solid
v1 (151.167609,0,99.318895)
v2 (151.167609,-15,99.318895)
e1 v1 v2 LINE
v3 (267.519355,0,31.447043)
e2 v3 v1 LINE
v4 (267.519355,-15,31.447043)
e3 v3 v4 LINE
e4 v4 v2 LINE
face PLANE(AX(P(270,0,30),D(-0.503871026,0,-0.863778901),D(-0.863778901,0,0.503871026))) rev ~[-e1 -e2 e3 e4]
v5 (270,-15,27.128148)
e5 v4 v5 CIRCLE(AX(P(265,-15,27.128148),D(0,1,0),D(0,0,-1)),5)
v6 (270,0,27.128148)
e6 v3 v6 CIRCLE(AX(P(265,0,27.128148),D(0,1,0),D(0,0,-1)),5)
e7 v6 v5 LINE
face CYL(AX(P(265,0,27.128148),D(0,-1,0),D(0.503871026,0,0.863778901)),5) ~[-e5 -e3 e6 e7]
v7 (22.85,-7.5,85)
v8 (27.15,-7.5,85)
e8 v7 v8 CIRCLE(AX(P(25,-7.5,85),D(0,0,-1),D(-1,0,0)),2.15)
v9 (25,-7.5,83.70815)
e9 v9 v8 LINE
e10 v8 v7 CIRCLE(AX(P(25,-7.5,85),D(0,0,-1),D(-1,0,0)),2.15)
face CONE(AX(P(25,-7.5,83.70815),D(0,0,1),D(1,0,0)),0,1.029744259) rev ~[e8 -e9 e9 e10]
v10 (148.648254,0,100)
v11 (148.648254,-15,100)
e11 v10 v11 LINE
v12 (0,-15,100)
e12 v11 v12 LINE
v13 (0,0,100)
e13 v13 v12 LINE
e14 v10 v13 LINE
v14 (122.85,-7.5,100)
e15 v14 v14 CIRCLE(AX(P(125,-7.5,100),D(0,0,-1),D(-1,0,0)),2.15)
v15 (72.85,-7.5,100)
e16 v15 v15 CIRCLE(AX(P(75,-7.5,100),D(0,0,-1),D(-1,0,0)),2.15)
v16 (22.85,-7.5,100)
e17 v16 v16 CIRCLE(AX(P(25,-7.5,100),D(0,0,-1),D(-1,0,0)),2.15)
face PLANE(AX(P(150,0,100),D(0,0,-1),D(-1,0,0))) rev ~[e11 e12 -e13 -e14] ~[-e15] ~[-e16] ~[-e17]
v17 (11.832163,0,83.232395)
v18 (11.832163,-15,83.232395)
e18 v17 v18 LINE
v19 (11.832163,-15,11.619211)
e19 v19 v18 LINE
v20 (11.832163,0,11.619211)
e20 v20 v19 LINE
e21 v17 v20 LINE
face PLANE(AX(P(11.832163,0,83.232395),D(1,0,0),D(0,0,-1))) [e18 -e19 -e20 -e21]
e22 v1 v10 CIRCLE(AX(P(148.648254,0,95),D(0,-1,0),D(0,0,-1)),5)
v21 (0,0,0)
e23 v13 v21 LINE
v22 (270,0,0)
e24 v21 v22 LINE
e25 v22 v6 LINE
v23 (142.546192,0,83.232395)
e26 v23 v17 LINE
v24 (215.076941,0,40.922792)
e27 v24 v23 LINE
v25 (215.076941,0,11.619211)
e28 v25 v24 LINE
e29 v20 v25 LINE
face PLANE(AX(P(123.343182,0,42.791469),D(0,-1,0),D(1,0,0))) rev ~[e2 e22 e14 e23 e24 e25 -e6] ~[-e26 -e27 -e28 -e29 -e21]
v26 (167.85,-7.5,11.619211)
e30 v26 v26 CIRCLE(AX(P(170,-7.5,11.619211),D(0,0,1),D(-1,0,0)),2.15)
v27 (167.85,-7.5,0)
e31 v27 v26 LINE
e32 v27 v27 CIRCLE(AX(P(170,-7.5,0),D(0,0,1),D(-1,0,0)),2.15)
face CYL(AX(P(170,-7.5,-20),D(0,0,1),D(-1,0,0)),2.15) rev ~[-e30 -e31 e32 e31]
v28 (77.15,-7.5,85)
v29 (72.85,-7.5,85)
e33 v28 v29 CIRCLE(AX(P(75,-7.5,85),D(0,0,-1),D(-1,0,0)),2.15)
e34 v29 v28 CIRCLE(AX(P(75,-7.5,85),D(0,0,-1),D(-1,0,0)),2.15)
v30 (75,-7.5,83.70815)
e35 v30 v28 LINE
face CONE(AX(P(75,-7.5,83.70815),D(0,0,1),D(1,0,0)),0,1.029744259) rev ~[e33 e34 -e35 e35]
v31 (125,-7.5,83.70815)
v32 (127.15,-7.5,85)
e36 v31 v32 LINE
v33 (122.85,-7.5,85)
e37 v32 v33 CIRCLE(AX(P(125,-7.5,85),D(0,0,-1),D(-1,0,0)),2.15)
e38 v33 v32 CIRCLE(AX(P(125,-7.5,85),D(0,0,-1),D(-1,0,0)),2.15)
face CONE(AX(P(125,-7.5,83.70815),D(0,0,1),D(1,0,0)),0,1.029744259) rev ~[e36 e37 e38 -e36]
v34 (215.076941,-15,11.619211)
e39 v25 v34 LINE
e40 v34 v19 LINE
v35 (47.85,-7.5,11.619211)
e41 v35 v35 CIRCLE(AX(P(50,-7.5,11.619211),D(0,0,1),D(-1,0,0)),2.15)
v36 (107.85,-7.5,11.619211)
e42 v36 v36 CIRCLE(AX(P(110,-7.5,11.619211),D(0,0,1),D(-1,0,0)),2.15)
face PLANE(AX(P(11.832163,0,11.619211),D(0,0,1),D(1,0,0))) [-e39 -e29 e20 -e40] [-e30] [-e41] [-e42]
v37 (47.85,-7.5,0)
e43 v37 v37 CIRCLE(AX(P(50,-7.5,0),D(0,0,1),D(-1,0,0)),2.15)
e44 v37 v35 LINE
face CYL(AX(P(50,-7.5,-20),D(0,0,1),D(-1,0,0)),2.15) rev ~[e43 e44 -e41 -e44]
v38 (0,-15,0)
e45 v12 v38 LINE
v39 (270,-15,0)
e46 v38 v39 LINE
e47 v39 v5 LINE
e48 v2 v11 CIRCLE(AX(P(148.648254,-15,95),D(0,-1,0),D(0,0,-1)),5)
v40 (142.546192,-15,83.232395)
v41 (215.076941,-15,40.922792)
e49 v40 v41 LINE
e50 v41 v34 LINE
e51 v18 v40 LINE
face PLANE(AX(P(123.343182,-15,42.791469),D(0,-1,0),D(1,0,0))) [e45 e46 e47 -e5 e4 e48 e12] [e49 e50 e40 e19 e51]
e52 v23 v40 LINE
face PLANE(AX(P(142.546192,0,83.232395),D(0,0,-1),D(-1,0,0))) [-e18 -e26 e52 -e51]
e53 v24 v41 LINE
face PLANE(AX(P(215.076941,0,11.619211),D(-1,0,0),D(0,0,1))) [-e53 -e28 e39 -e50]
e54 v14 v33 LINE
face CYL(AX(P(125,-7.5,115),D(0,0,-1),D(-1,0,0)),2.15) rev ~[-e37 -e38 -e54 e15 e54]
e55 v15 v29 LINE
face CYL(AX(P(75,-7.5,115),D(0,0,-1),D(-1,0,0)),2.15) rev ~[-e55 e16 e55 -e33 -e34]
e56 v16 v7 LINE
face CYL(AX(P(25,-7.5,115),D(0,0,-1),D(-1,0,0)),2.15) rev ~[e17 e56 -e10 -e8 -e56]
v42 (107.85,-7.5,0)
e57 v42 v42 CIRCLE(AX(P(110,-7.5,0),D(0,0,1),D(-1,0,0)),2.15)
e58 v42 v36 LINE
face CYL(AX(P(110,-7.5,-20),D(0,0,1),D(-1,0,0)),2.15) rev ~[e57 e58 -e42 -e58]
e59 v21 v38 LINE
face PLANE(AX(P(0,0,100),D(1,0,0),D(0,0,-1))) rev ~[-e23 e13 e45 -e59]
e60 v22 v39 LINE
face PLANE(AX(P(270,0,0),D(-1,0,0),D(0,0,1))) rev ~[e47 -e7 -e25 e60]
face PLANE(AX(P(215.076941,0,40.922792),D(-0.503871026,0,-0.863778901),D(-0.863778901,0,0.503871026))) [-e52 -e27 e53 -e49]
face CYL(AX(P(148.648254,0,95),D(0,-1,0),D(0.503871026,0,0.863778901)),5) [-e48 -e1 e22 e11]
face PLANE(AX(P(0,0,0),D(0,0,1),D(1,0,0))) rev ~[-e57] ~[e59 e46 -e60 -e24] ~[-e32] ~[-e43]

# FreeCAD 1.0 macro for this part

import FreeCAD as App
import Part
import Sketcher
Q = App.Units.Quantity


def edges_at(feature, points):
    """Names of the edges that pass closest to the given points."""
    edges = feature.Shape.Edges
    near = lambda p: min(range(len(edges)), key=lambda i: edges[i].distToShape(Part.Vertex(*p))[0])
    return sorted({f"Edge{near(p) + 1}" for p in points})


def add_polygon(sketch, points):
    """Adds a closed chain of lines whose ends are joined by coincident constraints."""
    first, n = sketch.GeometryCount, len(points)
    for a, b in zip(points, points[1:] + points[:1]):
        sketch.addGeometry(Part.LineSegment(App.Vector(*a, 0), App.Vector(*b, 0)), False)
    for i in range(n):
        sketch.addConstraint(Sketcher.Constraint("Coincident", first + i, 2, first + (i + 1) % n, 1))

doc = App.newDocument("Part")
body = doc.addObject("PartDesign::Body", "Body")

sketch1 = body.newObject("Sketcher::SketchObject", "Sketch")
sketch1.AttachmentSupport = (doc.getObject("XZ_Plane"), [""])
sketch1.MapMode = "FlatFace"
add_polygon(sketch1, [(0, 100), (0, 0), (270, 0), (270, 30), (150, 100)])
sketch1.addConstraint(Sketcher.Constraint("Vertical", 0))
sketch1.addConstraint(Sketcher.Constraint("Horizontal", 1))
sketch1.addConstraint(Sketcher.Constraint("Vertical", 2))
sketch1.addConstraint(Sketcher.Constraint("Horizontal", 4))
sketch1.addConstraint(Sketcher.Constraint("Coincident", 0, 2, -1, 1))
sketch1.addConstraint(Sketcher.Constraint("DistanceX", 1, 1, 1, 2, Q("270 mm")))
sketch1.addConstraint(Sketcher.Constraint("DistanceX", 4, 2, 4, 1, Q("150 mm")))
sketch1.addConstraint(Sketcher.Constraint("DistanceY", 0, 2, 0, 1, Q("100 mm")))
sketch1.addConstraint(Sketcher.Constraint("DistanceY", 2, 1, 2, 2, Q("30 mm")))
pad1 = body.newObject("PartDesign::Pad", "Pad")
pad1.Profile = sketch1
pad1.Length = 15

sketch2 = body.newObject("Sketcher::SketchObject", "Sketch001")
sketch2.AttachmentSupport = (doc.getObject("XY_Plane"), [""])
sketch2.MapMode = "FlatFace"
sketch2.AttachmentOffset = App.Placement(App.Vector(0, 0, 100), App.Rotation())
sketch2.addGeometry(Part.Circle(App.Vector(125, -7.5, 0), App.Vector(0, 0, 1), 2.15), False)
sketch2.addGeometry(Part.Circle(App.Vector(75, -7.5, 0), App.Vector(0, 0, 1), 2.15), False)
sketch2.addGeometry(Part.Circle(App.Vector(25, -7.5, 0), App.Vector(0, 0, 1), 2.15), False)
sketch2.addConstraint(Sketcher.Constraint("Equal", 0, 1))
sketch2.addConstraint(Sketcher.Constraint("Equal", 1, 2))
sketch2.addConstraint(Sketcher.Constraint("Horizontal", 0, 3, 1, 3))
sketch2.addConstraint(Sketcher.Constraint("Horizontal", 1, 3, 2, 3))
sketch2.addConstraint(Sketcher.Constraint("Diameter", 0, Q("4.3 mm")))
sketch2.addConstraint(Sketcher.Constraint("DistanceX", -1, 1, 0, 3, Q("125 mm")))
sketch2.addConstraint(Sketcher.Constraint("DistanceX", -1, 1, 1, 3, Q("75 mm")))
sketch2.addConstraint(Sketcher.Constraint("DistanceX", -1, 1, 2, 3, Q("25 mm")))
sketch2.addConstraint(Sketcher.Constraint("DistanceY", 0, 3, -1, 1, Q("7.5 mm")))
doc.recompute()
hole = body.newObject("PartDesign::Hole", "Hole")
hole.Profile = sketch2
hole.ThreadType = "None"
hole.Diameter = 4.3
hole.DepthType = "Dimension"
hole.Depth = 15
hole.DrillPoint = "Angled"
hole.DrillPointAngle = 118
doc.recompute()

fillet = body.newObject("PartDesign::Fillet", "Fillet")
fillet.Base = (hole, edges_at(hole, [(270, -7.5, 30)]))
fillet.Radius = 5
doc.recompute()

fillet2 = body.newObject("PartDesign::Fillet", "Fillet001")
fillet2.Base = (fillet, edges_at(fillet, [(150, -7.5, 100)]))
fillet2.Radius = 5

sketch3 = body.newObject("Sketcher::SketchObject", "Sketch002")
sketch3.AttachmentSupport = (doc.getObject("XZ_Plane"), [""])
sketch3.MapMode = "FlatFace"
add_polygon(sketch3, [(11.832163, 83.232395), (11.832163, 11.619211), (215.076941, 11.619211), (215.076941, 40.922792), (142.546192, 83.232395)])
sketch3.addConstraint(Sketcher.Constraint("Vertical", 0))
sketch3.addConstraint(Sketcher.Constraint("Horizontal", 1))
sketch3.addConstraint(Sketcher.Constraint("Vertical", 2))
sketch3.addConstraint(Sketcher.Constraint("Horizontal", 4))
sketch3.addConstraint(Sketcher.Constraint("DistanceX", 1, 1, 1, 2, Q("203.244778 mm")))
sketch3.addConstraint(Sketcher.Constraint("DistanceX", 4, 2, 4, 1, Q("130.714029 mm")))
sketch3.addConstraint(Sketcher.Constraint("DistanceY", 2, 1, 2, 2, Q("29.303581 mm")))
sketch3.addConstraint(Sketcher.Constraint("DistanceY", 0, 2, 0, 1, Q("71.613184 mm")))
sketch3.addConstraint(Sketcher.Constraint("DistanceY", -1, 1, 0, 2, Q("11.619211 mm")))
sketch3.addConstraint(Sketcher.Constraint("DistanceX", -1, 1, 1, 2, Q("215.076941 mm")))
pocket1 = body.newObject("PartDesign::Pocket", "Pocket")
pocket1.Profile = sketch3
pocket1.Type = "ThroughAll"
pocket1.Reversed = True

sketch4 = body.newObject("Sketcher::SketchObject", "Sketch003")
sketch4.AttachmentSupport = (doc.getObject("XY_Plane"), [""])
sketch4.MapMode = "FlatFace"
sketch4.addGeometry(Part.Circle(App.Vector(50, -7.5, 0), App.Vector(0, 0, 1), 2.15), False)
sketch4.addGeometry(Part.Circle(App.Vector(110, -7.5, 0), App.Vector(0, 0, 1), 2.15), False)
sketch4.addGeometry(Part.Circle(App.Vector(170, -7.5, 0), App.Vector(0, 0, 1), 2.15), False)
sketch4.addConstraint(Sketcher.Constraint("Equal", 0, 1))
sketch4.addConstraint(Sketcher.Constraint("Equal", 1, 2))
sketch4.addConstraint(Sketcher.Constraint("Horizontal", 0, 3, 1, 3))
sketch4.addConstraint(Sketcher.Constraint("Horizontal", 1, 3, 2, 3))
sketch4.addConstraint(Sketcher.Constraint("Diameter", 0, Q("4.3 mm")))
sketch4.addConstraint(Sketcher.Constraint("DistanceX", -1, 1, 0, 3, Q("50 mm")))
sketch4.addConstraint(Sketcher.Constraint("DistanceX", -1, 1, 1, 3, Q("110 mm")))
sketch4.addConstraint(Sketcher.Constraint("DistanceX", -1, 1, 2, 3, Q("170 mm")))
sketch4.addConstraint(Sketcher.Constraint("DistanceY", 0, 3, -1, 1, Q("7.5 mm")))
doc.recompute()
hole2 = body.newObject("PartDesign::Hole", "Hole001")
hole2.Profile = sketch4
hole2.ThreadType = "None"
hole2.Diameter = 4.3
hole2.DepthType = "Dimension"
hole2.Depth = 20
hole2.DrillPoint = "Angled"
hole2.DrillPointAngle = 118
hole2.Reversed = True

doc.recompute()
